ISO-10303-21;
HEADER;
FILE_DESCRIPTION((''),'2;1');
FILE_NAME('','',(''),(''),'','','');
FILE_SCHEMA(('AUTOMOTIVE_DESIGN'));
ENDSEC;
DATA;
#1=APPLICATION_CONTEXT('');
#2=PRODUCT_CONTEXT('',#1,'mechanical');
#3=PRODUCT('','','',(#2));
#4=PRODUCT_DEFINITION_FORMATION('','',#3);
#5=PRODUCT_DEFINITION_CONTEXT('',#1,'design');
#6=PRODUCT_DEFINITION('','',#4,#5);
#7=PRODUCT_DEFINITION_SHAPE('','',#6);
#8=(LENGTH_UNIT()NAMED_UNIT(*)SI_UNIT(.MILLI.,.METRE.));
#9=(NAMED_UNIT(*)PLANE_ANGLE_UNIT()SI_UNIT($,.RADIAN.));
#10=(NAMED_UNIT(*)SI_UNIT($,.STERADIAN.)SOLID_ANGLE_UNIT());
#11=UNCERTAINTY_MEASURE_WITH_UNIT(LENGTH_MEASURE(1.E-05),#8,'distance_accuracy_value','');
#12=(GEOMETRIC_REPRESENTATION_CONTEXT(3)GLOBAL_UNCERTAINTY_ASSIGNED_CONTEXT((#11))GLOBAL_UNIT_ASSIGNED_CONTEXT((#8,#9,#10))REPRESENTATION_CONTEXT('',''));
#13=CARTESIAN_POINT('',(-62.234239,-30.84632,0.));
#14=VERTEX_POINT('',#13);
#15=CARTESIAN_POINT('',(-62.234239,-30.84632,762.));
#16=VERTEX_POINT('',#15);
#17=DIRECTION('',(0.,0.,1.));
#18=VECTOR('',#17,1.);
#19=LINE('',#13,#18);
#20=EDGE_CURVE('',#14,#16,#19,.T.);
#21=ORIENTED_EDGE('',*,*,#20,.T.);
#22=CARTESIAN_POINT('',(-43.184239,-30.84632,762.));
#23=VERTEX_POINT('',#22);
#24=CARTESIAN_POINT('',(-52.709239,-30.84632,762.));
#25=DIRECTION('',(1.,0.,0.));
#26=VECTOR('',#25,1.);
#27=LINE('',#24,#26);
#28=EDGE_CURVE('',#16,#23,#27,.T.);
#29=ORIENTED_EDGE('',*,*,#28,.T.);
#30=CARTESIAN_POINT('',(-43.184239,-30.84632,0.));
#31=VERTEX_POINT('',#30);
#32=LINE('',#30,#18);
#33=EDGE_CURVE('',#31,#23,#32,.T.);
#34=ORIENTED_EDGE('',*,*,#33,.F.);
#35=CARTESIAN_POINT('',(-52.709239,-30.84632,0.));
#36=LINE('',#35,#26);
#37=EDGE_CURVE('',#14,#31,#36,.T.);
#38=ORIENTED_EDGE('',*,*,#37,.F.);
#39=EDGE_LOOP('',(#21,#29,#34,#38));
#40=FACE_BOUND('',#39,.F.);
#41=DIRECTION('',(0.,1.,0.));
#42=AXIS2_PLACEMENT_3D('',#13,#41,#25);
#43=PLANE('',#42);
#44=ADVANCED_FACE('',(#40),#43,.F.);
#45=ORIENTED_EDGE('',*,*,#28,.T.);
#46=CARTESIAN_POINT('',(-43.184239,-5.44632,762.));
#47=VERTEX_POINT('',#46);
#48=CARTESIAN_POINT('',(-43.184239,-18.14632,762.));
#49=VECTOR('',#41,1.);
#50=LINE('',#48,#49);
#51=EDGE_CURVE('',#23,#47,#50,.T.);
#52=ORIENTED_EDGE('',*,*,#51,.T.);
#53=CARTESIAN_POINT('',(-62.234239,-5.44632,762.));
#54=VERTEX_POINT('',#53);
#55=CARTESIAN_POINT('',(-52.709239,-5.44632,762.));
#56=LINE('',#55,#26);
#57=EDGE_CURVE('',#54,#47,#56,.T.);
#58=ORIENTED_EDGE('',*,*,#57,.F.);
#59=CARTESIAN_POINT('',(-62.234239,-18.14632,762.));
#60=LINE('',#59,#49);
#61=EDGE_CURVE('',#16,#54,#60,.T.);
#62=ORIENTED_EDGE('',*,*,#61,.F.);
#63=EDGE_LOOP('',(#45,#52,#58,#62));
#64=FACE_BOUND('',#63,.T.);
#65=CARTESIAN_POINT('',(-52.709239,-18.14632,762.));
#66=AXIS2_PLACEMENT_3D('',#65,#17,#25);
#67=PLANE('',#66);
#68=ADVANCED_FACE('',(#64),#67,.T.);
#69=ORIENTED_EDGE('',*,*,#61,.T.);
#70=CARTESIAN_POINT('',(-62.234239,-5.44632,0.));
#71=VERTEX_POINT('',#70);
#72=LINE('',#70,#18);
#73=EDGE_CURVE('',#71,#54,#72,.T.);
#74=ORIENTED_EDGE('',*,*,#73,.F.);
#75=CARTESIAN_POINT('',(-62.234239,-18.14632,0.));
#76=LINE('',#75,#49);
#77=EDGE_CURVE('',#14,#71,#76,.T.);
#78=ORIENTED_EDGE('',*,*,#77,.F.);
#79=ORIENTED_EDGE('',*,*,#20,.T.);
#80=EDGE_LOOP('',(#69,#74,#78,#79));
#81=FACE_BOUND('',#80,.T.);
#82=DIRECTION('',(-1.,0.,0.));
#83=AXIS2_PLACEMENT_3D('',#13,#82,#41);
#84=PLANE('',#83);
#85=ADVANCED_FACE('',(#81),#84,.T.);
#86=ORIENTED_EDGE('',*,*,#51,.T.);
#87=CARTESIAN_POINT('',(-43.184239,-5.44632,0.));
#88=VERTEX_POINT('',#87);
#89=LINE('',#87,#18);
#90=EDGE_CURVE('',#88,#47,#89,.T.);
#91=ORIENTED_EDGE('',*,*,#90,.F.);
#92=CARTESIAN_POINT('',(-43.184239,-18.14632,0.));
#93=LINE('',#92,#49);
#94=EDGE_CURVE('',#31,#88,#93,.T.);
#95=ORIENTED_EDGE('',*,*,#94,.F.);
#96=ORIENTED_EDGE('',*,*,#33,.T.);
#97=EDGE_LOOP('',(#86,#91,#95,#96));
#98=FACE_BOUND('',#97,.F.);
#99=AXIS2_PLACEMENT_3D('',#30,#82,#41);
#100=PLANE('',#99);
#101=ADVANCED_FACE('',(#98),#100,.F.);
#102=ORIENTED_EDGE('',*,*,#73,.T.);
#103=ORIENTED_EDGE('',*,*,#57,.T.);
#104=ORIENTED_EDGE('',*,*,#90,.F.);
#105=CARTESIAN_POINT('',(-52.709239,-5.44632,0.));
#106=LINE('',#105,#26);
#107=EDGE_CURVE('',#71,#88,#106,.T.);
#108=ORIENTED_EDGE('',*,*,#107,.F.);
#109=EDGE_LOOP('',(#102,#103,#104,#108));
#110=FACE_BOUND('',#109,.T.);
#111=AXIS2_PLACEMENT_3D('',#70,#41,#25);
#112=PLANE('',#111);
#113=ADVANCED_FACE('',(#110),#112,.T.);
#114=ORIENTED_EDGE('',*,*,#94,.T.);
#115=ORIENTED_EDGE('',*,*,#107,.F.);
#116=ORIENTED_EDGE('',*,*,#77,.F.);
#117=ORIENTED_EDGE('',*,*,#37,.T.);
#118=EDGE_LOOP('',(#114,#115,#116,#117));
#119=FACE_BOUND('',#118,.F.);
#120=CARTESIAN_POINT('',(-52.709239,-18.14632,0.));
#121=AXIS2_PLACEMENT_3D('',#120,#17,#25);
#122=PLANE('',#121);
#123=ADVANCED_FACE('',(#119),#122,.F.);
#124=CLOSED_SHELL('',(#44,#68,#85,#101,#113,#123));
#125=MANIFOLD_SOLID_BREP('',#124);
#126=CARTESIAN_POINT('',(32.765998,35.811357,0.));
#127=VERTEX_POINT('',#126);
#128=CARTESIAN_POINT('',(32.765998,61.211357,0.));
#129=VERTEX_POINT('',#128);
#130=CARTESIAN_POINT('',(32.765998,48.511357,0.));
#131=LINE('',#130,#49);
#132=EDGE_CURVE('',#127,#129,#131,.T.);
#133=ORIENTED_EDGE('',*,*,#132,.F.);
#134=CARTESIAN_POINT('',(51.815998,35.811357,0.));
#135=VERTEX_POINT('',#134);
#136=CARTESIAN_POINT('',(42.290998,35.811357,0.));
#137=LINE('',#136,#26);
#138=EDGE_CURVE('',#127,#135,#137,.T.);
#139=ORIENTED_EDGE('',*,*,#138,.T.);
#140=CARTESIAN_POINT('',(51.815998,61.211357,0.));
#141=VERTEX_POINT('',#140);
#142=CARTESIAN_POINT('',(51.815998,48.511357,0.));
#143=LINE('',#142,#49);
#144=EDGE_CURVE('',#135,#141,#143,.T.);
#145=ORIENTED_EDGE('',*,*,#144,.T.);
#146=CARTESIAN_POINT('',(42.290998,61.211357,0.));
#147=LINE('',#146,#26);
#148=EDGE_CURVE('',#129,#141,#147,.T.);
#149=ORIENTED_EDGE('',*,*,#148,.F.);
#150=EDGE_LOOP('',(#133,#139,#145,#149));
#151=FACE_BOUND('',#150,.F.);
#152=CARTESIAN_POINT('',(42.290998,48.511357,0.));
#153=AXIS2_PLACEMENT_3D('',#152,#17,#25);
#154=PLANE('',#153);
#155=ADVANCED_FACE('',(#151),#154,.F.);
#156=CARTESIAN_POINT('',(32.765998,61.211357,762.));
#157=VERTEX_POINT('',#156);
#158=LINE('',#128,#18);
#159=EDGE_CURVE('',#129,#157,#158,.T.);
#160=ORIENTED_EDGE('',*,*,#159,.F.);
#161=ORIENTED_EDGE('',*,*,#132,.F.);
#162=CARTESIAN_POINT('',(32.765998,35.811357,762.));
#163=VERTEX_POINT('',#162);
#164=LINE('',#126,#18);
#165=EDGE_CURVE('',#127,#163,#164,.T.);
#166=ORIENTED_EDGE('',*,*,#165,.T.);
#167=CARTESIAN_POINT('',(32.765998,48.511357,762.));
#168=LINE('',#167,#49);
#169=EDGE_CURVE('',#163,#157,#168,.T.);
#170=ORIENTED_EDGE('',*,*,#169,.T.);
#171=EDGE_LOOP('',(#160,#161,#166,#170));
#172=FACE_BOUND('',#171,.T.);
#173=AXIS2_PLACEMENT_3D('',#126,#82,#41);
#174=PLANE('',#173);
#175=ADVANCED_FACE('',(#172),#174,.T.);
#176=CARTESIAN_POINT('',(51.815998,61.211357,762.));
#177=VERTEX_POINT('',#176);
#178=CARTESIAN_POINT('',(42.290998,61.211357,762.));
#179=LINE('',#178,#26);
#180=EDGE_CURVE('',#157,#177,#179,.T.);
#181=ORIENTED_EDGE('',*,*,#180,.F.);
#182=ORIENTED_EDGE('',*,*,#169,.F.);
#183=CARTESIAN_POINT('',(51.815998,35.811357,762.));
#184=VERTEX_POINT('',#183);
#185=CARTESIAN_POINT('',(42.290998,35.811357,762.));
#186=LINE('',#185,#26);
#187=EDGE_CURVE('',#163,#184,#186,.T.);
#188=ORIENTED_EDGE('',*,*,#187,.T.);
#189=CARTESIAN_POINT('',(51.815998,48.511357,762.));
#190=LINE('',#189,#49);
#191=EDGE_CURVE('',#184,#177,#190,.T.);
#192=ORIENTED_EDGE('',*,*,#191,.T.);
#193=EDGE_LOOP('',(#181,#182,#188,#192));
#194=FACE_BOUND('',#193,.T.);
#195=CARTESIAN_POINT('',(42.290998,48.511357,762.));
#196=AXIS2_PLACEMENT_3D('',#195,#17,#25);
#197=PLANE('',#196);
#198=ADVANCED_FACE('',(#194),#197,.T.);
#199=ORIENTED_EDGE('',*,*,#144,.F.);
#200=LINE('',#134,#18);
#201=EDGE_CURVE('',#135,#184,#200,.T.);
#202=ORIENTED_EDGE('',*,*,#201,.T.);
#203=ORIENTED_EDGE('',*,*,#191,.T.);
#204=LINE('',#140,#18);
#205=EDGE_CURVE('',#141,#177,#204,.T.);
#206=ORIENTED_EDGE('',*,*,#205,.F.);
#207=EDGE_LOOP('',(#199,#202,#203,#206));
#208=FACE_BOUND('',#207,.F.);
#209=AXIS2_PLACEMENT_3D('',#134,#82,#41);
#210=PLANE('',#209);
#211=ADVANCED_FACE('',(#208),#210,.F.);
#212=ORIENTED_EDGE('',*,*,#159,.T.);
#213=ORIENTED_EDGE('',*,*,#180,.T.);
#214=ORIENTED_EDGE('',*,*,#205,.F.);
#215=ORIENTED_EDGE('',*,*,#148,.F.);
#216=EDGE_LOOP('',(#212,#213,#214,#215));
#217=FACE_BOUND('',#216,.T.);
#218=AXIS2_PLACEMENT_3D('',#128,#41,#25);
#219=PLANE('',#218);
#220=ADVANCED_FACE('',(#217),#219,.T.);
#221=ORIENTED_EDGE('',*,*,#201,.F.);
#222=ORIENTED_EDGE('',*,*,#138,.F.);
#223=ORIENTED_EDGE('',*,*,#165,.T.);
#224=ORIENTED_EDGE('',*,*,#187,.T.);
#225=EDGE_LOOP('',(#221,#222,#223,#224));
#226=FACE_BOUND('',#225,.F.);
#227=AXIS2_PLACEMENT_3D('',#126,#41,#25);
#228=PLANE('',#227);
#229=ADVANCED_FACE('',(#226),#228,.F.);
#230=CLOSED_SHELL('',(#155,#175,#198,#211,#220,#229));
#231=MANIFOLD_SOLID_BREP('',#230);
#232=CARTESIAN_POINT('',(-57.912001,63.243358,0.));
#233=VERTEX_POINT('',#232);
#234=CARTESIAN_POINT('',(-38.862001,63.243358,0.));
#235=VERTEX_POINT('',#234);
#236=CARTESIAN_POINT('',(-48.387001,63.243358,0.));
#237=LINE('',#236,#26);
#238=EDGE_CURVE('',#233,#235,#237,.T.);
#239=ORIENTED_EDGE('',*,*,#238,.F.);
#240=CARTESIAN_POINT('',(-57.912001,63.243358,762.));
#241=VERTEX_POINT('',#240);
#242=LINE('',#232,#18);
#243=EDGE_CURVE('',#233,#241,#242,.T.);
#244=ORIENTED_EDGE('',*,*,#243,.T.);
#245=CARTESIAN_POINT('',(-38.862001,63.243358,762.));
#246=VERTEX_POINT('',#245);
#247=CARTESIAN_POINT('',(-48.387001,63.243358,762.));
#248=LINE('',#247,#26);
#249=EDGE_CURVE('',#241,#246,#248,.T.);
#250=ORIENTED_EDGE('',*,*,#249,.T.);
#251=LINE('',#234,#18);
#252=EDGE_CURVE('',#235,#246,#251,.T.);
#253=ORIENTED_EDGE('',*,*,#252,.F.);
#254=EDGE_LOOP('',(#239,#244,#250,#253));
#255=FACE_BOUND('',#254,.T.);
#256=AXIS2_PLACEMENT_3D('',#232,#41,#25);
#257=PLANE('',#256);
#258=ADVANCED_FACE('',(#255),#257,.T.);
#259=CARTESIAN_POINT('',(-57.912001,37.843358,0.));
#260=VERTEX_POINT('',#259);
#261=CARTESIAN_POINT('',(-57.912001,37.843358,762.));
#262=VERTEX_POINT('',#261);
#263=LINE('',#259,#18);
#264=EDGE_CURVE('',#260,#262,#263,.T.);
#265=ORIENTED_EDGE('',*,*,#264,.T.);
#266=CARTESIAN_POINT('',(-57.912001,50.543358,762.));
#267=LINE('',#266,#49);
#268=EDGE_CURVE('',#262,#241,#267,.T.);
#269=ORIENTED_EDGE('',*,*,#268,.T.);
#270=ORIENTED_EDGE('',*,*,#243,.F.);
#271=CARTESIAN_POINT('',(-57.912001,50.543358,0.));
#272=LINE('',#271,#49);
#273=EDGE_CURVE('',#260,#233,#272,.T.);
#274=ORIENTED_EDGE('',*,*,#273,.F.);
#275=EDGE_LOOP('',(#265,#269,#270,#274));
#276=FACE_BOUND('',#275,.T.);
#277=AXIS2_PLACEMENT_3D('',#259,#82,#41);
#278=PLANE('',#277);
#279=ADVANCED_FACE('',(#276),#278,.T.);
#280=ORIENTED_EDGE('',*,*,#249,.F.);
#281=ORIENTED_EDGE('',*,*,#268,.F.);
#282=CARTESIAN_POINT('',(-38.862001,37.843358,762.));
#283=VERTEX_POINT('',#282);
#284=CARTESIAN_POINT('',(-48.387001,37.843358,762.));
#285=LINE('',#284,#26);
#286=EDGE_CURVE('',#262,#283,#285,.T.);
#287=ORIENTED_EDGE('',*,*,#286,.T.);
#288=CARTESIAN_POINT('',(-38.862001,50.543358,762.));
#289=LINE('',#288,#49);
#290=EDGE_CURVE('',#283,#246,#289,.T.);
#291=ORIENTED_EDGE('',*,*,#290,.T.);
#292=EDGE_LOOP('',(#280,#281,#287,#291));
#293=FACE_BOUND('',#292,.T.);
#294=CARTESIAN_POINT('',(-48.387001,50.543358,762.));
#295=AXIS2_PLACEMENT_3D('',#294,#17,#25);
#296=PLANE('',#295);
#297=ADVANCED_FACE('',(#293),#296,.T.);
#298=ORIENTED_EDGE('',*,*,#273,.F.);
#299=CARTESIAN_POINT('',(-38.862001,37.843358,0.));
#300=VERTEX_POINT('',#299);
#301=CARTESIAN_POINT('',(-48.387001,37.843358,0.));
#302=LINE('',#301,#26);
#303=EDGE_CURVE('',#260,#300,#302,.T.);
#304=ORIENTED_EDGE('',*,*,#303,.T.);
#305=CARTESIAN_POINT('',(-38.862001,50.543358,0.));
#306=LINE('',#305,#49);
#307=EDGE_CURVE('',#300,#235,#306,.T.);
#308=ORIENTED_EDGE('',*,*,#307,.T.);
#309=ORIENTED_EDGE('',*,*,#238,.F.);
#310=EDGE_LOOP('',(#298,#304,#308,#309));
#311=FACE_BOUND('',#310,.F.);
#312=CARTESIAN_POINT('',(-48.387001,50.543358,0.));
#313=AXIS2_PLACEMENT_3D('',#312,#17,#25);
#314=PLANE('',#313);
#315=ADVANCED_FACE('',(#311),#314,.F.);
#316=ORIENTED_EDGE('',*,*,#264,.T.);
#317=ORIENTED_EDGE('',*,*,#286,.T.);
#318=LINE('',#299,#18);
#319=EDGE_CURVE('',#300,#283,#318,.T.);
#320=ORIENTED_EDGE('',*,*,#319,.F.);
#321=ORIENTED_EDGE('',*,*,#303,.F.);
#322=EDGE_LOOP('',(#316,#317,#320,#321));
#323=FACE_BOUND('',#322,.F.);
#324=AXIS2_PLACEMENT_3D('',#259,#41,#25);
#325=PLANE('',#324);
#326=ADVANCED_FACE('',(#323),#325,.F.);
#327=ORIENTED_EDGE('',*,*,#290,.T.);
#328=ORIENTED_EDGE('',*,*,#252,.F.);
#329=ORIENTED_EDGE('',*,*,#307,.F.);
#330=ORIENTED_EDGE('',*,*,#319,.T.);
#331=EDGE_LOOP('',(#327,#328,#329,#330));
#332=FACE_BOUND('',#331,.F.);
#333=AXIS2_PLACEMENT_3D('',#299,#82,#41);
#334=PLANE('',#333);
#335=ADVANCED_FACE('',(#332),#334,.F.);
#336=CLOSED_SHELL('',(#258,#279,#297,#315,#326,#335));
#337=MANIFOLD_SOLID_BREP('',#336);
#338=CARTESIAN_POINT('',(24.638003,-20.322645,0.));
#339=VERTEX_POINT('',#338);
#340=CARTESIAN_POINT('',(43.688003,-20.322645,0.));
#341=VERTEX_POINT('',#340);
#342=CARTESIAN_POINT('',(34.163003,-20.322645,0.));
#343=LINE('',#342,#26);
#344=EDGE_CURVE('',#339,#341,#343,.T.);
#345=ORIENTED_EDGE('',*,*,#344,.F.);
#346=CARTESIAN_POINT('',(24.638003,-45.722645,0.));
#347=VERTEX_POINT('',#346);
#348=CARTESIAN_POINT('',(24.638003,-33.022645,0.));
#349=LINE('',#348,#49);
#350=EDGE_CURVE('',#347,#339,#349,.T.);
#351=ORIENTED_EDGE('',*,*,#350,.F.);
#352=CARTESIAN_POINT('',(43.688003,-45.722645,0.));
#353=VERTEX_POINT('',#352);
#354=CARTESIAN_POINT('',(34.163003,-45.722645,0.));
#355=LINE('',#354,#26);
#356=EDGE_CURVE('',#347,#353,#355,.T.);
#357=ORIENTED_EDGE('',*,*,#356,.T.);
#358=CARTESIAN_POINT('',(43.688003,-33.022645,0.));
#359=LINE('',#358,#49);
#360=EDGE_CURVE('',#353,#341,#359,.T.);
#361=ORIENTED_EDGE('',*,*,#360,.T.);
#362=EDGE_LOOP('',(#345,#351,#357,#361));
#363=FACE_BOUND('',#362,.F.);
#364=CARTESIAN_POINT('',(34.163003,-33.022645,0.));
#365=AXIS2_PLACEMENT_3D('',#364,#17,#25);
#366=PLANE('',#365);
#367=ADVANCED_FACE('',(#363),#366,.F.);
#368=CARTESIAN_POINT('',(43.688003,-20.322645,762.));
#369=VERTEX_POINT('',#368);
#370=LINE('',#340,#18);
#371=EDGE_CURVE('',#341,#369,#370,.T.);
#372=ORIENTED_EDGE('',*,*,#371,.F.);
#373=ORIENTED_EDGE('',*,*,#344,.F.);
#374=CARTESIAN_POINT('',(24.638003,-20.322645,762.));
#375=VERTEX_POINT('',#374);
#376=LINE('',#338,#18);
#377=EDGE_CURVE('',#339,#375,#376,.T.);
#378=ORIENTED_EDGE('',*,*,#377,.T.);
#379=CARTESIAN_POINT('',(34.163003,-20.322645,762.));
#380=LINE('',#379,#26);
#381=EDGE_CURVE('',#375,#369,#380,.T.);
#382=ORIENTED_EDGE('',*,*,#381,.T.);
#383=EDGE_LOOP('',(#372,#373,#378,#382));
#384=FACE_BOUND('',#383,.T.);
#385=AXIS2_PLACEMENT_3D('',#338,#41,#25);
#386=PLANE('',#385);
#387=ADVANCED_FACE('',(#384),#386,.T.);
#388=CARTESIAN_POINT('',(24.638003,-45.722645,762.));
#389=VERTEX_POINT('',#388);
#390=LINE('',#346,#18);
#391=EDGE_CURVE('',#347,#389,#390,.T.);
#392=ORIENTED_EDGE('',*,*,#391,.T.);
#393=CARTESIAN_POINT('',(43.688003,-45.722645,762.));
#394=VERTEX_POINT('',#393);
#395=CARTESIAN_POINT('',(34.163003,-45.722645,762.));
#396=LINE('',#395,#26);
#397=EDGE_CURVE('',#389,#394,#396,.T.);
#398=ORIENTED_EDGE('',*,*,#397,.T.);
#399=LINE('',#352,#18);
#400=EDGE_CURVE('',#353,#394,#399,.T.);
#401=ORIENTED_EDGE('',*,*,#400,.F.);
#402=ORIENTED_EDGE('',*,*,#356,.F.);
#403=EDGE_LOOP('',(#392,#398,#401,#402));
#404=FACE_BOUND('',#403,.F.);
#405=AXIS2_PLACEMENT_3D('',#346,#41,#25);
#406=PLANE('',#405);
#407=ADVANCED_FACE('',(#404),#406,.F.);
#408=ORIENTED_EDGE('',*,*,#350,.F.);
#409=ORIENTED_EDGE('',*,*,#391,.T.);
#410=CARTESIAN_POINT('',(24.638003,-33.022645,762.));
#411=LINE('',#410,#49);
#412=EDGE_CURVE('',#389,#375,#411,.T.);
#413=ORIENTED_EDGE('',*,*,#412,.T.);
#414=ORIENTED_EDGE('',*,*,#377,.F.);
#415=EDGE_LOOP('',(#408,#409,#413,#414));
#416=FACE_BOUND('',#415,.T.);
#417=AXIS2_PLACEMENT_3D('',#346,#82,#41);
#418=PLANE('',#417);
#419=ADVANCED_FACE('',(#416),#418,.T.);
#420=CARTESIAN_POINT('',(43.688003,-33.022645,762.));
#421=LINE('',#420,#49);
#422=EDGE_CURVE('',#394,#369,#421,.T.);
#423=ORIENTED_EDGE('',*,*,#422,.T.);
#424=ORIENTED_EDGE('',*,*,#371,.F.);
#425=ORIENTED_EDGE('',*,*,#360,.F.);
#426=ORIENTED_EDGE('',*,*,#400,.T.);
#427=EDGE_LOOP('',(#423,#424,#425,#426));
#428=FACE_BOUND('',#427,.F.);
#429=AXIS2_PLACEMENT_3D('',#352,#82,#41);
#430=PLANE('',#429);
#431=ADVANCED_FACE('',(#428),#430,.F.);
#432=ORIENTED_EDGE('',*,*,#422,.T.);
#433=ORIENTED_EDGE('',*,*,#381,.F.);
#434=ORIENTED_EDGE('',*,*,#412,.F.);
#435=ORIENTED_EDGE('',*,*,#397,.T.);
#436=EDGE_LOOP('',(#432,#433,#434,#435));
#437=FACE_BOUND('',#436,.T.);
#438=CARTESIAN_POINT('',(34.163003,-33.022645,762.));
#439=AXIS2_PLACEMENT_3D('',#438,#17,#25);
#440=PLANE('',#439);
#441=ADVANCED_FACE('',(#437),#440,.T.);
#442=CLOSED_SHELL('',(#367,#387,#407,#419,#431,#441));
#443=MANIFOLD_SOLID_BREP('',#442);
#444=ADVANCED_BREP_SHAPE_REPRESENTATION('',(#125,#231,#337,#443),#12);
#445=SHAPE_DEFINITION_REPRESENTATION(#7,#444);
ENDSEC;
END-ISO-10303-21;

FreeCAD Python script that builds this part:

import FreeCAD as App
import Part
import Sketcher

V = App.Vector
Q = App.Units.Quantity

doc = App.newDocument("Part")
body = doc.addObject("PartDesign::Body", "Body")

# Sketch on XY plane
sketch1 = doc.addObject("Sketcher::SketchObject", "Sketch")
body.addObject(sketch1)
sketch1.AttachmentSupport = (doc.XY_Plane, [""])
sketch1.MapMode = "FlatFace"
sketch1.addGeometry(Part.LineSegment(V(-62, -5, 0), V(-62, -31, 0)), False)
sketch1.addGeometry(Part.LineSegment(V(-62, -31, 0), V(-43, -31, 0)), False)
sketch1.addGeometry(Part.LineSegment(V(-43, -31, 0), V(-43, -5, 0)), False)
sketch1.addGeometry(Part.LineSegment(V(-43, -5, 0), V(-62, -5, 0)), False)
sketch1.addConstraint(Sketcher.Constraint("Coincident", 0, 2, 1, 1))
sketch1.addConstraint(Sketcher.Constraint("Coincident", 1, 2, 2, 1))
sketch1.addConstraint(Sketcher.Constraint("Coincident", 2, 2, 3, 1))
sketch1.addConstraint(Sketcher.Constraint("Coincident", 3, 2, 0, 1))
sketch1.addConstraint(Sketcher.Constraint("Vertical", 0))
sketch1.addConstraint(Sketcher.Constraint("Horizontal", 1))
sketch1.addConstraint(Sketcher.Constraint("Vertical", 2))
sketch1.addConstraint(Sketcher.Constraint("Horizontal", 3))
sketch1.addConstraint(Sketcher.Constraint("DistanceY", 0, 2, 0, 1, Q("1 in")))
sketch1.addConstraint(Sketcher.Constraint("DistanceX", 1, 1, 1, 2, Q("0.75 in")))
sketch1.addConstraint(Sketcher.Constraint("DistanceX", 0, 2, -1, 1, 62.234239))
sketch1.addConstraint(Sketcher.Constraint("DistanceY", 0, 2, -1, 1, 30.84632))
pad1 = doc.addObject("PartDesign::Pad", "Pad")
body.addObject(pad1)
pad1.Profile = sketch1
pad1.Length = Q("30 in")
body2 = doc.addObject("PartDesign::Body", "Body001")
body2.AllowCompound = True

# Sketch on XY plane
sketch2 = doc.addObject("Sketcher::SketchObject", "Sketch001")
body2.addObject(sketch2)
sketch2.AttachmentSupport = (doc.getObject("XY_Plane001"), [""])
sketch2.MapMode = "FlatFace"
sketch2.addGeometry(Part.LineSegment(V(-58, 63, 0), V(-58, 38, 0)), False)
sketch2.addGeometry(Part.LineSegment(V(-58, 38, 0), V(-39, 38, 0)), False)
sketch2.addGeometry(Part.LineSegment(V(-39, 38, 0), V(-39, 63, 0)), False)
sketch2.addGeometry(Part.LineSegment(V(-39, 63, 0), V(-58, 63, 0)), False)
sketch2.addGeometry(Part.LineSegment(V(33, 61, 0), V(33, 36, 0)), False)
sketch2.addGeometry(Part.LineSegment(V(33, 36, 0), V(52, 36, 0)), False)
sketch2.addGeometry(Part.LineSegment(V(52, 36, 0), V(52, 61, 0)), False)
sketch2.addGeometry(Part.LineSegment(V(52, 61, 0), V(33, 61, 0)), False)
sketch2.addGeometry(Part.LineSegment(V(25, -20, 0), V(25, -46, 0)), False)
sketch2.addGeometry(Part.LineSegment(V(25, -46, 0), V(44, -46, 0)), False)
sketch2.addGeometry(Part.LineSegment(V(44, -46, 0), V(44, -20, 0)), False)
sketch2.addGeometry(Part.LineSegment(V(44, -20, 0), V(25, -20, 0)), False)
sketch2.addConstraint(Sketcher.Constraint("Coincident", 0, 2, 1, 1))
sketch2.addConstraint(Sketcher.Constraint("Coincident", 1, 2, 2, 1))
sketch2.addConstraint(Sketcher.Constraint("Coincident", 2, 2, 3, 1))
sketch2.addConstraint(Sketcher.Constraint("Coincident", 3, 2, 0, 1))
sketch2.addConstraint(Sketcher.Constraint("Coincident", 4, 2, 5, 1))
sketch2.addConstraint(Sketcher.Constraint("Coincident", 5, 2, 6, 1))
sketch2.addConstraint(Sketcher.Constraint("Coincident", 6, 2, 7, 1))
sketch2.addConstraint(Sketcher.Constraint("Coincident", 7, 2, 4, 1))
sketch2.addConstraint(Sketcher.Constraint("Coincident", 8, 2, 9, 1))
sketch2.addConstraint(Sketcher.Constraint("Coincident", 9, 2, 10, 1))
sketch2.addConstraint(Sketcher.Constraint("Coincident", 10, 2, 11, 1))
sketch2.addConstraint(Sketcher.Constraint("Coincident", 11, 2, 8, 1))
sketch2.addConstraint(Sketcher.Constraint("Vertical", 0))
sketch2.addConstraint(Sketcher.Constraint("Horizontal", 1))
sketch2.addConstraint(Sketcher.Constraint("Vertical", 2))
sketch2.addConstraint(Sketcher.Constraint("Horizontal", 3))
sketch2.addConstraint(Sketcher.Constraint("Vertical", 4))
sketch2.addConstraint(Sketcher.Constraint("Horizontal", 5))
sketch2.addConstraint(Sketcher.Constraint("Vertical", 6))
sketch2.addConstraint(Sketcher.Constraint("Horizontal", 7))
sketch2.addConstraint(Sketcher.Constraint("Vertical", 8))
sketch2.addConstraint(Sketcher.Constraint("Horizontal", 9))
sketch2.addConstraint(Sketcher.Constraint("Vertical", 10))
sketch2.addConstraint(Sketcher.Constraint("Horizontal", 11))
sketch2.addConstraint(Sketcher.Constraint("Equal", 3, 5))
sketch2.addConstraint(Sketcher.Constraint("Equal", 7, 9))
sketch2.addConstraint(Sketcher.Constraint("Equal", 2, 4))
sketch2.addConstraint(Sketcher.Constraint("Equal", 6, 8))
sketch2.addConstraint(Sketcher.Constraint("DistanceY", 0, 2, 0, 1, Q("1 in")))
sketch2.addConstraint(Sketcher.Constraint("DistanceX", 1, 1, 1, 2, Q("0.75 in")))
sketch2.addConstraint(Sketcher.Constraint("DistanceX", 1, 2, 8, 2, Q("2.5000002 in")))
sketch2.addConstraint(Sketcher.Constraint("DistanceX", 0, 2, -1, 1, Q("2.28 in")))
sketch2.addConstraint(Sketcher.Constraint("DistanceX", -1, 1, 4, 2, Q("1.2899999 in")))
sketch2.addConstraint(Sketcher.Constraint("DistanceY", 4, 2, 1, 2, Q("0.08 in")))
sketch2.addConstraint(Sketcher.Constraint("DistanceY", 8, 2, 4, 2, Q("3.2100001 in")))
sketch2.addConstraint(Sketcher.Constraint("DistanceY", -1, 1, 0, 2, 37.843358))
pad2 = doc.addObject("PartDesign::Pad", "Pad001")
body2.addObject(pad2)
pad2.Profile = sketch2
pad2.Length = Q("30 in")

doc.recompute()
